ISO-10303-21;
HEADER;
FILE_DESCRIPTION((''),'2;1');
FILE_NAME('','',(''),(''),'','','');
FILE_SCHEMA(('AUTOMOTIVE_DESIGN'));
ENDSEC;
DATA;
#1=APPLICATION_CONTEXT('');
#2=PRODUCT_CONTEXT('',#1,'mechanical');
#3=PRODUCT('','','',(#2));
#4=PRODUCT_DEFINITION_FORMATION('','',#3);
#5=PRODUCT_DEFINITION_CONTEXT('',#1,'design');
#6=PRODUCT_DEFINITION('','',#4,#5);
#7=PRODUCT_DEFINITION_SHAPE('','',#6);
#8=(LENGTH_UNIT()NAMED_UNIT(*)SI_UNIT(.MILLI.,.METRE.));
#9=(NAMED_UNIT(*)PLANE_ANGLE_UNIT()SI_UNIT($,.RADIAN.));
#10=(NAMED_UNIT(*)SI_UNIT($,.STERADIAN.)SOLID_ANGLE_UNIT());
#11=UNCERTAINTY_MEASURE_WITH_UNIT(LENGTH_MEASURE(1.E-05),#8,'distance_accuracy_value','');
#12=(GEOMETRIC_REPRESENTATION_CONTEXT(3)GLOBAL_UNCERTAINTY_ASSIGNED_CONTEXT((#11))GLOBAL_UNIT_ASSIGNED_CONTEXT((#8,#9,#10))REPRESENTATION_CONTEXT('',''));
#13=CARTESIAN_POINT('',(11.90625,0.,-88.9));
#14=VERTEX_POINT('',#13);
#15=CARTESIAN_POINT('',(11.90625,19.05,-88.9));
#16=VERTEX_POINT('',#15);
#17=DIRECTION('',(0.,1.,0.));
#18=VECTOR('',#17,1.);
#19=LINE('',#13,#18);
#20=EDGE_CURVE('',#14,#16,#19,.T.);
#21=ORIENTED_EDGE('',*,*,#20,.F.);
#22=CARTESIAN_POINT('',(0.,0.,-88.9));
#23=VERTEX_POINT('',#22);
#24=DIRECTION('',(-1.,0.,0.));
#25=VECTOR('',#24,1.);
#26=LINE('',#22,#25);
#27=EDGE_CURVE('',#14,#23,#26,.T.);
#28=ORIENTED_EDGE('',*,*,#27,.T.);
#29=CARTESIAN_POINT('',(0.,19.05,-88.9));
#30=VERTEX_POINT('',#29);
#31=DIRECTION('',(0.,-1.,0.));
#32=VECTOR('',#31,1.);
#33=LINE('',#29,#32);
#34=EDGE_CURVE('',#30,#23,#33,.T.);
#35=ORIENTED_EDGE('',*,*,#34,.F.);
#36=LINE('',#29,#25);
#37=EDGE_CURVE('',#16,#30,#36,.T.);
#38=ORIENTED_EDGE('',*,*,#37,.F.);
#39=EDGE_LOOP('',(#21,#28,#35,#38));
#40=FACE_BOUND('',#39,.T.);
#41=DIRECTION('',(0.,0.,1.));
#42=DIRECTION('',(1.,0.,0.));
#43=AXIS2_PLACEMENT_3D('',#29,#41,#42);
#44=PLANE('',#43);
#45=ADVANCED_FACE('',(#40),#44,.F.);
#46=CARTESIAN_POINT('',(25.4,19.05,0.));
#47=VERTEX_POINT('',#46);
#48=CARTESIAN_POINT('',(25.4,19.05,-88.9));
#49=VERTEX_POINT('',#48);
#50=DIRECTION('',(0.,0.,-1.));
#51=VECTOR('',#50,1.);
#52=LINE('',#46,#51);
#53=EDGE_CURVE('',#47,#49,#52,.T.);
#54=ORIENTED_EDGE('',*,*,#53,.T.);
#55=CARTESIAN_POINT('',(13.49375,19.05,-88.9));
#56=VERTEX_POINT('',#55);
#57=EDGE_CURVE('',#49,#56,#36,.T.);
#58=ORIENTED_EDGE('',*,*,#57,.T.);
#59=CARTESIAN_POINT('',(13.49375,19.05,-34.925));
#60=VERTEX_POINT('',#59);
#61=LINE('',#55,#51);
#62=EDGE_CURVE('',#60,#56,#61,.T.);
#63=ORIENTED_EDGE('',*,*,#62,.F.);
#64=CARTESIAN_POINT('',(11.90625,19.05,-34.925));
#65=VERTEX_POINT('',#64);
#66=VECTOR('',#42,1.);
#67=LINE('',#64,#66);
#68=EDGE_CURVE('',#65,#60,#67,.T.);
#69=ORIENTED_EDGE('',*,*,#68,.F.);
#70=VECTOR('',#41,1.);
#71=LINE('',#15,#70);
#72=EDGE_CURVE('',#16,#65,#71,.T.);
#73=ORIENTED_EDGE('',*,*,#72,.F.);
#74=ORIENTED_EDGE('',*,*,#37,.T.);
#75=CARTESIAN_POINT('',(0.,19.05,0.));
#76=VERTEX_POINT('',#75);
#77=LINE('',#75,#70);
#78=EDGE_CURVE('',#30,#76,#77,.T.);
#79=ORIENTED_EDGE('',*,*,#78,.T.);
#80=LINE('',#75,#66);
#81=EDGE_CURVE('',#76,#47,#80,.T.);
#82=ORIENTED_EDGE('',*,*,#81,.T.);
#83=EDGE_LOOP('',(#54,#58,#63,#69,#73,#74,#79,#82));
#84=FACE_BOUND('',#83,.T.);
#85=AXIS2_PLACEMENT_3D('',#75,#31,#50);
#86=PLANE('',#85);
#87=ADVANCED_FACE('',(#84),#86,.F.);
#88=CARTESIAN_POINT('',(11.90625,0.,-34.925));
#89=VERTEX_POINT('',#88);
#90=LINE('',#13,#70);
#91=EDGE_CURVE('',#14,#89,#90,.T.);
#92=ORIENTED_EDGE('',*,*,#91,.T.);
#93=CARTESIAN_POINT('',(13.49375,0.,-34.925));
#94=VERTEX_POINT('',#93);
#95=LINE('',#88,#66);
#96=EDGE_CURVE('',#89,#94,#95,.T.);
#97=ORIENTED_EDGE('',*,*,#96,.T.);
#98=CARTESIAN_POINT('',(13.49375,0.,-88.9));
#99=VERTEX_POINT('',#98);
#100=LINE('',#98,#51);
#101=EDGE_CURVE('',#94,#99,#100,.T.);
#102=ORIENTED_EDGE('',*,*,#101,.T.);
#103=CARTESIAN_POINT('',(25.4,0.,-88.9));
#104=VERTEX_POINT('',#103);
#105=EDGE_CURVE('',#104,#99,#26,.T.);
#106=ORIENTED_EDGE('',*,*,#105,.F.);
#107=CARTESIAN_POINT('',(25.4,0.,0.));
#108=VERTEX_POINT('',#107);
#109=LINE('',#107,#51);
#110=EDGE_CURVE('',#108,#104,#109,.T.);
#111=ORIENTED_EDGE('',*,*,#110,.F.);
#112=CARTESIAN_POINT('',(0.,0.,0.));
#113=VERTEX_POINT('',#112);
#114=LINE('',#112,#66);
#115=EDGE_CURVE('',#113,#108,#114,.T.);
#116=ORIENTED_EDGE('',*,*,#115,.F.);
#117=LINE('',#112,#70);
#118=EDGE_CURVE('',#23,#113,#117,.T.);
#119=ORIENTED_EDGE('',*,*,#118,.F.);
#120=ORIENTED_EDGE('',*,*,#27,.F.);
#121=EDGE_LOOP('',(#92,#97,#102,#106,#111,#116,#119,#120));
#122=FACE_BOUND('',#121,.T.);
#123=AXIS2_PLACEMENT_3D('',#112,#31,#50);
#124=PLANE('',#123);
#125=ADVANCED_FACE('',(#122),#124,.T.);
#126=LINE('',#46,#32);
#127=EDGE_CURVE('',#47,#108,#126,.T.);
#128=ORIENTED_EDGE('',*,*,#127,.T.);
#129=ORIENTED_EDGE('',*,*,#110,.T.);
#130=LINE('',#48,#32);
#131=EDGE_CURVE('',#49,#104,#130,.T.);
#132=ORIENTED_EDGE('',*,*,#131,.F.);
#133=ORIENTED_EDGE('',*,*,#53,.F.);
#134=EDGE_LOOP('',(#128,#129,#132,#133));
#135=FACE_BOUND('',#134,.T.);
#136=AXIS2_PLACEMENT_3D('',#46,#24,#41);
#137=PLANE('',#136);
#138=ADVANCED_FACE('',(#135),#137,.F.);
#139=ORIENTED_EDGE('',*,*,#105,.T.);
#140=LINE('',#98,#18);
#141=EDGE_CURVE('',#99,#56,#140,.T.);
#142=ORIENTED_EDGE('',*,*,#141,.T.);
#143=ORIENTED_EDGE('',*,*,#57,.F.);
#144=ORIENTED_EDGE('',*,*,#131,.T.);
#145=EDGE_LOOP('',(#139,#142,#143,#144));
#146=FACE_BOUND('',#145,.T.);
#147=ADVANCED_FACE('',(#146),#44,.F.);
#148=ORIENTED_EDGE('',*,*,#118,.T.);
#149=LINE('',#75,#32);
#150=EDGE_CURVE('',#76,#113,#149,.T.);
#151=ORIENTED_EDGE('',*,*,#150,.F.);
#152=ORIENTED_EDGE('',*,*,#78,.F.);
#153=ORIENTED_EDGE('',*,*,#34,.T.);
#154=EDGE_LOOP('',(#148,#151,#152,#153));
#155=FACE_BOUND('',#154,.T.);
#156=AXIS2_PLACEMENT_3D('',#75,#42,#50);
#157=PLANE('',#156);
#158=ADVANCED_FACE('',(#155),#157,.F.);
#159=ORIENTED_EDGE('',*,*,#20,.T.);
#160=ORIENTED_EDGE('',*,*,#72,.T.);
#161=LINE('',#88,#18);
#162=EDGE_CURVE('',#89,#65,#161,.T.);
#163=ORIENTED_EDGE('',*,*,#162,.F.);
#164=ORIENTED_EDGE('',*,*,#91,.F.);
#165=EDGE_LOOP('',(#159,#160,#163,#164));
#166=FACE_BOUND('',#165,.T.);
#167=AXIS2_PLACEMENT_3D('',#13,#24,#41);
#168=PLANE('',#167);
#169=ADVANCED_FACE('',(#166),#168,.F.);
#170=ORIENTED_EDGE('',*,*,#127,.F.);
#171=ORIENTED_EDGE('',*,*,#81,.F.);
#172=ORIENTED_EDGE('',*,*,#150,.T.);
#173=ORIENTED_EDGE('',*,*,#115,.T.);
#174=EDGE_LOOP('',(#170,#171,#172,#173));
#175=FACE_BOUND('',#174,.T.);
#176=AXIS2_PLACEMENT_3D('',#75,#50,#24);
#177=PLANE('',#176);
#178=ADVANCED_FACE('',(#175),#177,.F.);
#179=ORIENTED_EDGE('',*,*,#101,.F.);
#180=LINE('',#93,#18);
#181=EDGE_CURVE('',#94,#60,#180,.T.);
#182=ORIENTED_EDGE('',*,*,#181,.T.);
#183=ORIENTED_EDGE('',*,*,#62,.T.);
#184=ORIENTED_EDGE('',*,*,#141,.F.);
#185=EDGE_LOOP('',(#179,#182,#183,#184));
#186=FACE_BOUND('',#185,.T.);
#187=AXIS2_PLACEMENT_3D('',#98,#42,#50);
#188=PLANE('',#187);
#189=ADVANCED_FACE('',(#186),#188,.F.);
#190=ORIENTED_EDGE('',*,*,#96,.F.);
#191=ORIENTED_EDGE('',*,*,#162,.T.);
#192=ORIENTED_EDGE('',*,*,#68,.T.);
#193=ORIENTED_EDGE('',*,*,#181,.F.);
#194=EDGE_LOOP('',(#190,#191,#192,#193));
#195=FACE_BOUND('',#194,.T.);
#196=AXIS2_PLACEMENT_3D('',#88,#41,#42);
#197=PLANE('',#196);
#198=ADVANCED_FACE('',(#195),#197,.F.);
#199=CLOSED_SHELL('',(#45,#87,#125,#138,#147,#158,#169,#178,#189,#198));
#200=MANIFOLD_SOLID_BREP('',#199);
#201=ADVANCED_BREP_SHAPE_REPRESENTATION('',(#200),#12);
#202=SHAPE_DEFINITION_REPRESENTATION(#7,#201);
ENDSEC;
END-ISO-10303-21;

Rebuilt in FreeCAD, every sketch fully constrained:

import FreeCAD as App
import Part
import Sketcher
Q = App.Units.Quantity

doc = App.newDocument("Part")
body = doc.addObject("PartDesign::Body", "Body")

sketch1 = doc.addObject("Sketcher::SketchObject", "Sketch")
body.addObject(sketch1)
sketch1.AttachmentSupport = (doc.XZ_Plane, [""])
sketch1.MapMode = "FlatFace"
sketch1.addGeometry(Part.LineSegment(App.Vector(0, -89, 0), App.Vector(0, 0, 0)), False)
sketch1.addGeometry(Part.LineSegment(App.Vector(0, 0, 0), App.Vector(25, 0, 0)), False)
sketch1.addGeometry(Part.LineSegment(App.Vector(25, 0, 0), App.Vector(25, -89, 0)), False)
sketch1.addGeometry(Part.LineSegment(App.Vector(25, -89, 0), App.Vector(0, -89, 0)), False)
sketch1.addConstraint(Sketcher.Constraint("Coincident", 0, 2, 1, 1))
sketch1.addConstraint(Sketcher.Constraint("Coincident", 1, 2, 2, 1))
sketch1.addConstraint(Sketcher.Constraint("Coincident", 2, 2, 3, 1))
sketch1.addConstraint(Sketcher.Constraint("Coincident", 3, 2, 0, 1))
sketch1.addConstraint(Sketcher.Constraint("Vertical", 0))
sketch1.addConstraint(Sketcher.Constraint("Horizontal", 1))
sketch1.addConstraint(Sketcher.Constraint("Vertical", 2))
sketch1.addConstraint(Sketcher.Constraint("Horizontal", 3))
sketch1.addConstraint(Sketcher.Constraint("Coincident", 0, 2, -1, 1))
sketch1.addConstraint(Sketcher.Constraint("DistanceX", 1, 1, 1, 2, Q("1 in")))
sketch1.addConstraint(Sketcher.Constraint("DistanceY", 0, 1, 0, 2, Q("3.5 in")))
pad1 = doc.addObject("PartDesign::Pad", "Pad")
body.addObject(pad1)
pad1.Profile = sketch1
pad1.Length = Q("0.75 in")
pad1.Reversed = True

sketch2 = doc.addObject("Sketcher::SketchObject", "Sketch001")
body.addObject(sketch2)
sketch2.AttachmentSupport = (doc.XZ_Plane, [""])
sketch2.MapMode = "FlatFace"
sketch2.AttachmentOffset = App.Placement(App.Vector(0, 0, -0.75 * 25.4), App.Rotation())
sketch2.addGeometry(Part.LineSegment(App.Vector(11.9, -88.9, 0), App.Vector(11.9, -34.9, 0)), False)
sketch2.addGeometry(Part.LineSegment(App.Vector(11.9, -34.9, 0), App.Vector(13.5, -34.9, 0)), False)
sketch2.addGeometry(Part.LineSegment(App.Vector(13.5, -34.9, 0), App.Vector(13.5, -88.9, 0)), False)
sketch2.addGeometry(Part.LineSegment(App.Vector(13.5, -88.9, 0), App.Vector(11.9, -88.9, 0)), False)
sketch2.addConstraint(Sketcher.Constraint("Coincident", 0, 2, 1, 1))
sketch2.addConstraint(Sketcher.Constraint("Coincident", 1, 2, 2, 1))
sketch2.addConstraint(Sketcher.Constraint("Coincident", 2, 2, 3, 1))
sketch2.addConstraint(Sketcher.Constraint("Coincident", 3, 2, 0, 1))
sketch2.addConstraint(Sketcher.Constraint("Vertical", 0))
sketch2.addConstraint(Sketcher.Constraint("Horizontal", 1))
sketch2.addConstraint(Sketcher.Constraint("Vertical", 2))
sketch2.addConstraint(Sketcher.Constraint("Horizontal", 3))
sketch2.addConstraint(Sketcher.Constraint("DistanceY", 2, 2, -1, 1, Q("3.5 in")))
sketch2.addConstraint(Sketcher.Constraint("DistanceX", 1, 1, 1, 2, Q("0.0625 in")))
sketch2.addConstraint(Sketcher.Constraint("DistanceY", 0, 1, 0, 2, Q("2.125 in")))
sketch2.addConstraint(Sketcher.Constraint("DistanceX", -1, 1, 0, 2, Q("0.46875 in")))
pocket1 = doc.addObject("PartDesign::Pocket", "Pocket")
body.addObject(pocket1)
pocket1.Profile = sketch2
pocket1.Type = "ThroughAll"
pocket1.Reversed = True

doc.recompute()
